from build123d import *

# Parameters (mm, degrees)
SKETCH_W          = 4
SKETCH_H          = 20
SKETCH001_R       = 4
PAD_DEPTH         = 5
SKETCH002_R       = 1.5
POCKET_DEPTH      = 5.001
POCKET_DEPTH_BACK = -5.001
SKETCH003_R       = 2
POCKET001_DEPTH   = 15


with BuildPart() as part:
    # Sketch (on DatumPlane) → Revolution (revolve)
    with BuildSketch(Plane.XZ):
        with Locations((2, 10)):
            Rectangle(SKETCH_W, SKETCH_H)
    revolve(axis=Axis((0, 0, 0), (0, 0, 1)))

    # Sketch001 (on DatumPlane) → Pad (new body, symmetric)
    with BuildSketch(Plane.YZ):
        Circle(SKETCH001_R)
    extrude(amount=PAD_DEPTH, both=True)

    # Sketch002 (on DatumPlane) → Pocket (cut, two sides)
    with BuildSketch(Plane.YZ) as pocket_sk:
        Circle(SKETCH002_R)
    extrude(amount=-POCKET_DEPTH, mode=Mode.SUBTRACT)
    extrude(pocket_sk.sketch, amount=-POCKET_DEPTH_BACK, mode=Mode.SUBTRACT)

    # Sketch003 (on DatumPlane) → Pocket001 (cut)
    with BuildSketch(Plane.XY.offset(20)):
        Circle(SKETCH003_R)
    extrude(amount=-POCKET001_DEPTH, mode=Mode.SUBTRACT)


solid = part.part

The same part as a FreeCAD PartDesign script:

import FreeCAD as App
import Part
import Sketcher

V = App.Vector
Q = App.Units.Quantity


def add_polygon(sketch, points):
    """Adds a closed chain of lines whose ends are joined by coincident constraints."""
    first, n = sketch.GeometryCount, len(points)
    for a, b in zip(points, points[1:] + points[:1]):
        sketch.addGeometry(Part.LineSegment(App.Vector(*a, 0), App.Vector(*b, 0)), False)
    for i in range(n):
        sketch.addConstraint(Sketcher.Constraint("Coincident", first + i, 2, first + (i + 1) % n, 1))

doc = App.newDocument("Part")
params = doc.addObject("Spreadsheet::Sheet", "Params")
for row, (alias, value) in enumerate([
    ("sketch1_width", "4 mm"),
    ("sketch1_height", "20 mm"),
    ("revolution_angle", "360 deg"),
    ("sketch2_diameter", "8 mm"),
    ("pad1_length", "10 mm"),
    ("sketch3_diameter", "3 mm"),
    ("sketch4_diameter", "4 mm"),
    ("pocket2_length", "15 mm"),
], start=1):
    params.set(f"A{row}", alias)
    params.set(f"B{row}", "=" + value)
    params.setAlias(f"B{row}", alias)

body = doc.addObject("PartDesign::Body", "Body")

sketch1 = body.newObject("Sketcher::SketchObject", "Sketch")
sketch1.AttachmentSupport = (doc.getObject("XZ_Plane"), [""])
sketch1.MapMode = "FlatFace"
add_polygon(sketch1, [(0, 20), (0, 0), (4, 0), (4, 20)])
sketch1.addConstraint(Sketcher.Constraint("Vertical", 0))
sketch1.addConstraint(Sketcher.Constraint("Horizontal", 1))
sketch1.addConstraint(Sketcher.Constraint("Vertical", 2))
sketch1.addConstraint(Sketcher.Constraint("Horizontal", 3))
sketch1.addConstraint(Sketcher.Constraint("Coincident", 0, 2, -1, 1))
sketch1.addConstraint(Sketcher.Constraint("DistanceX", 1, 1, 1, 2, Q("4 mm")))
sketch1.addConstraint(Sketcher.Constraint("DistanceY", 0, 2, 0, 1, Q("20 mm")))
sketch1.setExpression("Constraints[9]", "Params.sketch1_width")
sketch1.setExpression("Constraints[10]", "Params.sketch1_height")
revolution = body.newObject("PartDesign::Revolution", "Revolution")
revolution.Profile = sketch1
revolution.ReferenceAxis = (sketch1, ["V_Axis"])
revolution.setExpression("Angle", "Params.revolution_angle")

sketch2 = body.newObject("Sketcher::SketchObject", "Sketch001")
sketch2.AttachmentSupport = (doc.getObject("YZ_Plane"), [""])
sketch2.MapMode = "FlatFace"
sketch2.addGeometry(Part.Circle(V(0, 0, 0), V(0, 0, 1), 4), False)
sketch2.addConstraint(Sketcher.Constraint("Coincident", 0, 3, -1, 1))
sketch2.addConstraint(Sketcher.Constraint("Diameter", 0, Q("8 mm")))
sketch2.setExpression("Constraints[1]", "Params.sketch2_diameter")
pad1 = body.newObject("PartDesign::Pad", "Pad")
pad1.Profile = sketch2
pad1.setExpression("Length", "Params.pad1_length")
pad1.Midplane = True

sketch3 = body.newObject("Sketcher::SketchObject", "Sketch002")
sketch3.AttachmentSupport = (doc.getObject("YZ_Plane"), [""])
sketch3.MapMode = "FlatFace"
sketch3.addGeometry(Part.Circle(V(0, 0, 0), V(0, 0, 1), 1.5), False)
sketch3.addConstraint(Sketcher.Constraint("Coincident", 0, 3, -1, 1))
sketch3.addConstraint(Sketcher.Constraint("Diameter", 0, Q("3 mm")))
sketch3.setExpression("Constraints[1]", "Params.sketch3_diameter")
pocket1 = body.newObject("PartDesign::Pocket", "Pocket")
pocket1.Profile = sketch3
pocket1.Type = "ThroughAll"
pocket1.Midplane = True

sketch4 = body.newObject("Sketcher::SketchObject", "Sketch003")
sketch4.AttachmentSupport = (doc.getObject("XY_Plane"), [""])
sketch4.MapMode = "FlatFace"
sketch4.AttachmentOffset = App.Placement(V(0, 0, 20), App.Rotation())
sketch4.addGeometry(Part.Circle(V(0, 0, 0), V(0, 0, 1), 2), False)
sketch4.addConstraint(Sketcher.Constraint("Coincident", 0, 3, -1, 1))
sketch4.addConstraint(Sketcher.Constraint("Diameter", 0, Q("4 mm")))
sketch4.setExpression("Constraints[1]", "Params.sketch4_diameter")
pocket2 = body.newObject("PartDesign::Pocket", "Pocket001")
pocket2.Profile = sketch4
pocket2.setExpression("Length", "Params.pocket2_length")

doc.recompute()
